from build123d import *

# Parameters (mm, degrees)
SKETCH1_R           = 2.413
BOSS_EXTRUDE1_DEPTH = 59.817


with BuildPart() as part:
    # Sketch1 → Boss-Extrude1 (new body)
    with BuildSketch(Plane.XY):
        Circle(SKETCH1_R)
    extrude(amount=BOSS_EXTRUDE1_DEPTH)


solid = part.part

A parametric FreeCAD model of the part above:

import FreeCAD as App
import Part
import Sketcher

V = App.Vector
Q = App.Units.Quantity

doc = App.newDocument("Part")
body = doc.addObject("PartDesign::Body", "Body")

sketch1 = body.newObject("Sketcher::SketchObject", "Sketch")
sketch1.AttachmentSupport = (doc.getObject("XY_Plane"), [""])
sketch1.MapMode = "FlatFace"
sketch1.addGeometry(Part.Circle(V(0, 0, 0), V(0, 0, 1), 2.413), False)
sketch1.addConstraint(Sketcher.Constraint("Coincident", 0, 3, -1, 1))
sketch1.addConstraint(Sketcher.Constraint("Diameter", 0, Q("0.19 in")))
pad1 = body.newObject("PartDesign::Pad", "Pad")
pad1.Profile = sketch1
pad1.Length = Q("2.355 in")

doc.recompute()
